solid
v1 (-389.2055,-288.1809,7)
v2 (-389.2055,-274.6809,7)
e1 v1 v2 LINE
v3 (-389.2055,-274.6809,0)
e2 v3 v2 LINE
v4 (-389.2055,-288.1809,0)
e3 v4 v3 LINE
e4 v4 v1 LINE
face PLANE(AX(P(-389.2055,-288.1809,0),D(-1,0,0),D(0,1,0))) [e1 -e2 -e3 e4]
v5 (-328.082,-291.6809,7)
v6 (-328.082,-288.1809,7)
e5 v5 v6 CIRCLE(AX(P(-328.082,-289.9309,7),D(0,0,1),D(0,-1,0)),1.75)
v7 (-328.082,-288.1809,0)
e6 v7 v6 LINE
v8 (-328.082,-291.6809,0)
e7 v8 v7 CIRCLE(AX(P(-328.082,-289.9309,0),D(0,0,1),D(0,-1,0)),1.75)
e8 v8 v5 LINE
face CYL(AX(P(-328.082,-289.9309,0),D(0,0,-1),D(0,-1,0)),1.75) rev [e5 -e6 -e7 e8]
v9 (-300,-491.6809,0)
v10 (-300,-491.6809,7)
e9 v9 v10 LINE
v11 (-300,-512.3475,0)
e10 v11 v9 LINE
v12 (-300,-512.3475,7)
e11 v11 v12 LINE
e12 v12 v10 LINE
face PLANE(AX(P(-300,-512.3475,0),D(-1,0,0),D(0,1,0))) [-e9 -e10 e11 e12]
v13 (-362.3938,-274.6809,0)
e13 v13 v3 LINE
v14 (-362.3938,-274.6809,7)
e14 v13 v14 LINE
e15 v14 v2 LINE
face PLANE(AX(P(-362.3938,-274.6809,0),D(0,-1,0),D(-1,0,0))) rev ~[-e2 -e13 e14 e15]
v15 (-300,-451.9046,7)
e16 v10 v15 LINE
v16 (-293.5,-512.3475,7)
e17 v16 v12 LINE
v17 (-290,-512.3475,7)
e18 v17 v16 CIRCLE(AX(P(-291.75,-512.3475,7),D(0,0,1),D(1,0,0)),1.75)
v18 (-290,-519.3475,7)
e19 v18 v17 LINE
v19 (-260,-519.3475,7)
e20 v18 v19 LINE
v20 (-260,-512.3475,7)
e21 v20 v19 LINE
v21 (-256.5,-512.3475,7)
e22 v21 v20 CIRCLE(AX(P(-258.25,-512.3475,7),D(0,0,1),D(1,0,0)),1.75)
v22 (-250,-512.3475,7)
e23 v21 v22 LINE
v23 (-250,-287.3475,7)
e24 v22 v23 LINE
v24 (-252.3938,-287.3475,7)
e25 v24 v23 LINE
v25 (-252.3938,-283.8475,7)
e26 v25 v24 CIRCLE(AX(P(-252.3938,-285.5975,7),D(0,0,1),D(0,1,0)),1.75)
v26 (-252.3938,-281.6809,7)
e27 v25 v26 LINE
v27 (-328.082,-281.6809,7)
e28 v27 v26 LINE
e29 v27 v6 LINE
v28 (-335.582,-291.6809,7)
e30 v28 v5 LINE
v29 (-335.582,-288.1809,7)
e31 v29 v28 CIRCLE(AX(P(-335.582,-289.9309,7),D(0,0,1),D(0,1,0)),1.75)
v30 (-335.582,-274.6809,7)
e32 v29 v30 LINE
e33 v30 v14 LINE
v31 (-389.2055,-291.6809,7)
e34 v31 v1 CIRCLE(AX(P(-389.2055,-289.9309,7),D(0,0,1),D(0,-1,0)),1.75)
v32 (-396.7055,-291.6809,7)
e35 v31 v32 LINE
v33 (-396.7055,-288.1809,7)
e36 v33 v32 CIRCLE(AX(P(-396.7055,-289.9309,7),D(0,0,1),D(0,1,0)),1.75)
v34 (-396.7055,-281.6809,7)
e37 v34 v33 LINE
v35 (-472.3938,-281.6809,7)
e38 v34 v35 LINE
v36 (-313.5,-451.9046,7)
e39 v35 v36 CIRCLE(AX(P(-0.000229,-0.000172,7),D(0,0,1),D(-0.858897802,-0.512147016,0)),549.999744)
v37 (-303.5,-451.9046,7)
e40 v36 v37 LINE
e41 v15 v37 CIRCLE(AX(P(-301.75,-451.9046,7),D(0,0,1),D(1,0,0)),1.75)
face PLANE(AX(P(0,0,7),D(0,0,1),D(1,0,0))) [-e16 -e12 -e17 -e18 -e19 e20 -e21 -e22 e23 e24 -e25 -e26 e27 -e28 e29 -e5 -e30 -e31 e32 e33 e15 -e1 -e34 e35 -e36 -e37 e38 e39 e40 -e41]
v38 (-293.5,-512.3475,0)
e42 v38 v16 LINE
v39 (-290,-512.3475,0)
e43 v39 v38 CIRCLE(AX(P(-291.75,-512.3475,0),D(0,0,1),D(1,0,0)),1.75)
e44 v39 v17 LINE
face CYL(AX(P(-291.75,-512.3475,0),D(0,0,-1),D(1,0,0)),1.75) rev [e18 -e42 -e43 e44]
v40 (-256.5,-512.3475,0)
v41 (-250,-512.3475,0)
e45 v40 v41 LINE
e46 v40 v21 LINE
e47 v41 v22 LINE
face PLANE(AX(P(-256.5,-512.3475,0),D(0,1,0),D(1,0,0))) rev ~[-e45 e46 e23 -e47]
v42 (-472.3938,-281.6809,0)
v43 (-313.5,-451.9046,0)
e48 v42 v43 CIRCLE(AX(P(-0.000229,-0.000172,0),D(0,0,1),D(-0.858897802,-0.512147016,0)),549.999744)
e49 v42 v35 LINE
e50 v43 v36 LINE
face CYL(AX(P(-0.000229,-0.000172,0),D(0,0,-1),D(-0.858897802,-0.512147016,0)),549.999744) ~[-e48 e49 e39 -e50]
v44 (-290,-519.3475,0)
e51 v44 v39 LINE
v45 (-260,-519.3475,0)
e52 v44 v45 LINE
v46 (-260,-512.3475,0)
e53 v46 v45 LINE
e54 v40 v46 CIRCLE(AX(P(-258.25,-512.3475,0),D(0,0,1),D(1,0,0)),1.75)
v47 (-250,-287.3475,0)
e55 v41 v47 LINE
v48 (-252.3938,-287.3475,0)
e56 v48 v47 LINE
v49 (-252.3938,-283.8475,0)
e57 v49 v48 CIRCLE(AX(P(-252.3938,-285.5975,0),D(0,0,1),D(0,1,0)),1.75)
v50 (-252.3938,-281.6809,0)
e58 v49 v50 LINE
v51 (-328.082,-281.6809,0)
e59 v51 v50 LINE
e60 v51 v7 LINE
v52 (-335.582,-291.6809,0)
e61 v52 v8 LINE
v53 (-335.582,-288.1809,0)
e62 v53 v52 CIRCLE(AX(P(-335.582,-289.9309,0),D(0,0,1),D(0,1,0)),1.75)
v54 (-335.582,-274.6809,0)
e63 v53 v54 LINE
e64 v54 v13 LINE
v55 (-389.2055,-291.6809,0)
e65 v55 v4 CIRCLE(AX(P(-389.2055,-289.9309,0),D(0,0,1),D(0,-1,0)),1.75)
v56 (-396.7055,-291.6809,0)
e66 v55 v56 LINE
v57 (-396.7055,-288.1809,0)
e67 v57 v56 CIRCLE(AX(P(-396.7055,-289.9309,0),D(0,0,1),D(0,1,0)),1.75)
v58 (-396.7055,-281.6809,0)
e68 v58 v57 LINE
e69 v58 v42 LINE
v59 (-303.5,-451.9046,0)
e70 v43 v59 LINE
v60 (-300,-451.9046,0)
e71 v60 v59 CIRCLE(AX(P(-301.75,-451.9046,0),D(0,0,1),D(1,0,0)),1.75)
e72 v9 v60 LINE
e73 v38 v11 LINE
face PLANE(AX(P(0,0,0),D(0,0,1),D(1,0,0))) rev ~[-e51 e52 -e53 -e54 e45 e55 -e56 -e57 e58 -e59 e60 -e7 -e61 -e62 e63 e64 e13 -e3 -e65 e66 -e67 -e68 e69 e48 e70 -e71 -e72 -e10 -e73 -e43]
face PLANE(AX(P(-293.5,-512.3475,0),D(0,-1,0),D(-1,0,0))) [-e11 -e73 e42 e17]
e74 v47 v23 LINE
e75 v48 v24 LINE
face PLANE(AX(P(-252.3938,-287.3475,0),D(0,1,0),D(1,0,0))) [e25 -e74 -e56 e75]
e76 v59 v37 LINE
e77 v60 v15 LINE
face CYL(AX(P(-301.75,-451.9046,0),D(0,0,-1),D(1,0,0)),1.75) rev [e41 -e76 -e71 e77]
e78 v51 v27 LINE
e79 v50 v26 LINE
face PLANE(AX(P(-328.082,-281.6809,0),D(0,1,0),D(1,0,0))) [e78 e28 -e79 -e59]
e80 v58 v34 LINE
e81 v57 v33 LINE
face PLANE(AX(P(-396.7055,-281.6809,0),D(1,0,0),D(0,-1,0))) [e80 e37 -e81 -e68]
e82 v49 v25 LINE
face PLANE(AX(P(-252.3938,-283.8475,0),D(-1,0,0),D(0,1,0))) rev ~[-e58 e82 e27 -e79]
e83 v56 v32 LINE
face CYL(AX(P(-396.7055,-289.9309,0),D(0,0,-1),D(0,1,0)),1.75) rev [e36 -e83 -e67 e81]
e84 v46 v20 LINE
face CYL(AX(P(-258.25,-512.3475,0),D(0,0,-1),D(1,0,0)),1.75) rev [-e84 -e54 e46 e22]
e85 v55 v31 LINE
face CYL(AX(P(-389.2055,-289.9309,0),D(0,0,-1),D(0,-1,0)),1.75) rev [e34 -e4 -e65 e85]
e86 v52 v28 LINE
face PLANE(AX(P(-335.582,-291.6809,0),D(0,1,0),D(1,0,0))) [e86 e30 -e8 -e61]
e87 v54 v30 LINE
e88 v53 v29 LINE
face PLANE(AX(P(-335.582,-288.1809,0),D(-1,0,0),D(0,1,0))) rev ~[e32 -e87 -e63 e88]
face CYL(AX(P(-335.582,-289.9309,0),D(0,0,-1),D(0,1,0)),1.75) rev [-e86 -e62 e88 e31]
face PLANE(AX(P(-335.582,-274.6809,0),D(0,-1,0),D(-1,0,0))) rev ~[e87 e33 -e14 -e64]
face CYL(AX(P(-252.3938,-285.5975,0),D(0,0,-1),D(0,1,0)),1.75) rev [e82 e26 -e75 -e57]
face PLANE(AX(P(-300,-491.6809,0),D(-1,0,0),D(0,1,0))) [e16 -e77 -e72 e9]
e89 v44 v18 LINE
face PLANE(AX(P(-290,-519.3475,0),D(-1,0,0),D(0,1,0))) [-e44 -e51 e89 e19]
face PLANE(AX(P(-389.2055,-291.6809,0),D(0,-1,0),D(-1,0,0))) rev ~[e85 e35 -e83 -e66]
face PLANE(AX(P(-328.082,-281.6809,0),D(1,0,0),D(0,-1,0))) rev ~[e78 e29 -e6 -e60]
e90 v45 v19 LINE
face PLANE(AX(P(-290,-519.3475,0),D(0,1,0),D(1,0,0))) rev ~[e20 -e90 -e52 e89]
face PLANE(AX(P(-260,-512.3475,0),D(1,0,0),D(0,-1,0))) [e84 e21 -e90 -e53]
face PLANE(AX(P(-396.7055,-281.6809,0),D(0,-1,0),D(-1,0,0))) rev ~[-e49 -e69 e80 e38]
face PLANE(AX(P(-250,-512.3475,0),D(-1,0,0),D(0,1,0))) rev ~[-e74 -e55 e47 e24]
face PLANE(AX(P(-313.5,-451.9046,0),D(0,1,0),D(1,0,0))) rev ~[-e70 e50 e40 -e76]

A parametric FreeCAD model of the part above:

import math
import FreeCAD as App
import Part
import Sketcher
Q = App.Units.Quantity

doc = App.newDocument("Part")
body = doc.addObject("PartDesign::Body", "Body")

# Sketch on XY plane
sketch1 = doc.addObject("Sketcher::SketchObject", "Sketch")
body.addObject(sketch1)
sketch1.AttachmentSupport = (doc.XY_Plane, [""])
sketch1.MapMode = "FlatFace"
sketch1.addGeometry(Part.ArcOfCircle(Part.Circle(App.Vector(-258.25, -512.3475, 0), App.Vector(0, 0, 1), 1.75), math.radians(0), math.radians(180)), False)
sketch1.addGeometry(Part.LineSegment(App.Vector(-256.5, -512.3475, 0), App.Vector(-250, -512.3475, 0)), False)
sketch1.addGeometry(Part.LineSegment(App.Vector(-250, -512.3475, 0), App.Vector(-250, -287.3475, 0)), False)
sketch1.addGeometry(Part.LineSegment(App.Vector(-250, -287.3475, 0), App.Vector(-252.3938, -287.3475, 0)), False)
sketch1.addGeometry(Part.ArcOfCircle(Part.Circle(App.Vector(-252.3938, -285.5975, 0), App.Vector(0, 0, 1), 1.75), math.radians(90), math.radians(270)), False)
sketch1.addGeometry(Part.LineSegment(App.Vector(-252.3938, -283.8475, 0), App.Vector(-252.3938, -281.6809, 0)), False)
sketch1.addGeometry(Part.LineSegment(App.Vector(-252.3938, -281.6809, 0), App.Vector(-328.082, -281.6809, 0)), False)
sketch1.addGeometry(Part.LineSegment(App.Vector(-328.082, -281.6809, 0), App.Vector(-328.082, -288.1809, 0)), False)
sketch1.addGeometry(Part.ArcOfCircle(Part.Circle(App.Vector(-328.082, -289.9309, 0), App.Vector(0, 0, 1), 1.75), math.radians(-90), math.radians(90)), False)
sketch1.addGeometry(Part.LineSegment(App.Vector(-328.082, -291.6809, 0), App.Vector(-335.582, -291.6809, 0)), False)
sketch1.addGeometry(Part.ArcOfCircle(Part.Circle(App.Vector(-335.582, -289.9309, 0), App.Vector(0, 0, 1), 1.75), math.radians(90), math.radians(270)), False)
sketch1.addGeometry(Part.LineSegment(App.Vector(-335.582, -288.1809, 0), App.Vector(-335.582, -274.6809, 0)), False)
sketch1.addGeometry(Part.LineSegment(App.Vector(-335.582, -274.6809, 0), App.Vector(-389.2055, -274.6809, 0)), False)
sketch1.addGeometry(Part.LineSegment(App.Vector(-389.2055, -274.6809, 0), App.Vector(-389.2055, -288.1809, 0)), False)
sketch1.addGeometry(Part.ArcOfCircle(Part.Circle(App.Vector(-389.2055, -289.9309, 0), App.Vector(0, 0, 1), 1.75), math.radians(-90), math.radians(90)), False)
sketch1.addGeometry(Part.LineSegment(App.Vector(-389.2055, -291.6809, 0), App.Vector(-396.7055, -291.6809, 0)), False)
sketch1.addGeometry(Part.ArcOfCircle(Part.Circle(App.Vector(-396.7055, -289.9309, 0), App.Vector(0, 0, 1), 1.75), math.radians(90), math.radians(270)), False)
sketch1.addGeometry(Part.LineSegment(App.Vector(-396.7055, -288.1809, 0), App.Vector(-396.7055, -281.6809, 0)), False)
sketch1.addGeometry(Part.LineSegment(App.Vector(-396.7055, -281.6809, 0), App.Vector(-472.3938, -281.6809, 0)), False)
sketch1.addGeometry(Part.ArcOfCircle(Part.Circle(App.Vector(0, 0, 0), App.Vector(0, 0, 1), 549.999964), math.radians(-149.193049), math.radians(-124.750225)), False)
sketch1.addGeometry(Part.LineSegment(App.Vector(-313.5, -451.9046, 0), App.Vector(-303.5, -451.9046, 0)), False)
sketch1.addGeometry(Part.ArcOfCircle(Part.Circle(App.Vector(-301.75, -451.9046, 0), App.Vector(0, 0, 1), 1.75), math.radians(0), math.radians(180)), False)
sketch1.addGeometry(Part.LineSegment(App.Vector(-300, -451.9046, 0), App.Vector(-300, -512.3475, 0)), False)
sketch1.addGeometry(Part.LineSegment(App.Vector(-300, -512.3475, 0), App.Vector(-293.5, -512.3475, 0)), False)
sketch1.addGeometry(Part.ArcOfCircle(Part.Circle(App.Vector(-291.75, -512.3475, 0), App.Vector(0, 0, 1), 1.75), math.radians(0), math.radians(180)), False)
sketch1.addGeometry(Part.LineSegment(App.Vector(-290, -512.3475, 0), App.Vector(-290, -519.3475, 0)), False)
sketch1.addGeometry(Part.LineSegment(App.Vector(-290, -519.3475, 0), App.Vector(-260, -519.3475, 0)), False)
sketch1.addGeometry(Part.LineSegment(App.Vector(-260, -519.3475, 0), App.Vector(-260, -512.3475, 0)), False)
sketch1.addConstraint(Sketcher.Constraint("Coincident", 0, 1, 1, 1))
sketch1.addConstraint(Sketcher.Constraint("Coincident", 1, 2, 2, 1))
sketch1.addConstraint(Sketcher.Constraint("Coincident", 2, 2, 3, 1))
sketch1.addConstraint(Sketcher.Constraint("Tangent", 3, 2, 4, 2))
sketch1.addConstraint(Sketcher.Constraint("Coincident", 4, 1, 5, 1))
sketch1.addConstraint(Sketcher.Constraint("Coincident", 5, 2, 6, 1))
sketch1.addConstraint(Sketcher.Constraint("Coincident", 6, 2, 7, 1))
sketch1.addConstraint(Sketcher.Constraint("Coincident", 7, 2, 8, 2))
sketch1.addConstraint(Sketcher.Constraint("Tangent", 8, 1, 9, 1))
sketch1.addConstraint(Sketcher.Constraint("Tangent", 9, 2, 10, 2))
sketch1.addConstraint(Sketcher.Constraint("Coincident", 10, 1, 11, 1))
sketch1.addConstraint(Sketcher.Constraint("Coincident", 11, 2, 12, 1))
sketch1.addConstraint(Sketcher.Constraint("Coincident", 12, 2, 13, 1))
sketch1.addConstraint(Sketcher.Constraint("Coincident", 13, 2, 14, 2))
sketch1.addConstraint(Sketcher.Constraint("Tangent", 14, 1, 15, 1))
sketch1.addConstraint(Sketcher.Constraint("Tangent", 15, 2, 16, 2))
sketch1.addConstraint(Sketcher.Constraint("Coincident", 16, 1, 17, 1))
sketch1.addConstraint(Sketcher.Constraint("Coincident", 17, 2, 18, 1))
sketch1.addConstraint(Sketcher.Constraint("Coincident", 18, 2, 19, 1))
sketch1.addConstraint(Sketcher.Constraint("Coincident", 19, 2, 20, 1))
sketch1.addConstraint(Sketcher.Constraint("Coincident", 20, 2, 21, 2))
sketch1.addConstraint(Sketcher.Constraint("Tangent", 21, 1, 22, 1))
sketch1.addConstraint(Sketcher.Constraint("Coincident", 22, 2, 23, 1))
sketch1.addConstraint(Sketcher.Constraint("Coincident", 23, 2, 24, 2))
sketch1.addConstraint(Sketcher.Constraint("Tangent", 24, 1, 25, 1))
sketch1.addConstraint(Sketcher.Constraint("Coincident", 25, 2, 26, 1))
sketch1.addConstraint(Sketcher.Constraint("Coincident", 26, 2, 27, 1))
sketch1.addConstraint(Sketcher.Constraint("Tangent", 27, 2, 0, 2))
sketch1.addConstraint(Sketcher.Constraint("Horizontal", 1))
sketch1.addConstraint(Sketcher.Constraint("Vertical", 2))
sketch1.addConstraint(Sketcher.Constraint("Horizontal", 3))
sketch1.addConstraint(Sketcher.Constraint("Vertical", 5))
sketch1.addConstraint(Sketcher.Constraint("Horizontal", 6))
sketch1.addConstraint(Sketcher.Constraint("Vertical", 7))
sketch1.addConstraint(Sketcher.Constraint("Horizontal", 9))
sketch1.addConstraint(Sketcher.Constraint("Vertical", 11))
sketch1.addConstraint(Sketcher.Constraint("Horizontal", 12))
sketch1.addConstraint(Sketcher.Constraint("Vertical", 13))
sketch1.addConstraint(Sketcher.Constraint("Horizontal", 15))
sketch1.addConstraint(Sketcher.Constraint("Vertical", 17))
sketch1.addConstraint(Sketcher.Constraint("Horizontal", 18))
sketch1.addConstraint(Sketcher.Constraint("Horizontal", 20))
sketch1.addConstraint(Sketcher.Constraint("Vertical", 22))
sketch1.addConstraint(Sketcher.Constraint("Horizontal", 23))
sketch1.addConstraint(Sketcher.Constraint("Vertical", 25))
sketch1.addConstraint(Sketcher.Constraint("Horizontal", 26))
sketch1.addConstraint(Sketcher.Constraint("Vertical", 27))
sketch1.addConstraint(Sketcher.Constraint("Coincident", 19, 3, -1, 1))
sketch1.addConstraint(Sketcher.Constraint("Equal", 0, 4))
sketch1.addConstraint(Sketcher.Constraint("Equal", 4, 8))
sketch1.addConstraint(Sketcher.Constraint("Equal", 8, 10))
sketch1.addConstraint(Sketcher.Constraint("Equal", 10, 14))
sketch1.addConstraint(Sketcher.Constraint("Equal", 14, 16))
sketch1.addConstraint(Sketcher.Constraint("Equal", 16, 21))
sketch1.addConstraint(Sketcher.Constraint("Equal", 21, 24))
sketch1.addConstraint(Sketcher.Constraint("Horizontal", 10, 3, 14, 3))
sketch1.addConstraint(Sketcher.Constraint("Horizontal", 0, 3, 24, 3))
sketch1.addConstraint(Sketcher.Constraint("Horizontal", 24, 3, 0, 1))
sketch1.addConstraint(Sketcher.Constraint("Horizontal", 6, 2, 17, 2))
sketch1.addConstraint(Sketcher.Constraint("Horizontal", 21, 3, 19, 2))
sketch1.addConstraint(Sketcher.Constraint("Horizontal", 1, 2, 22, 2))
sketch1.addConstraint(Sketcher.Constraint("Vertical", 3, 2, 4, 1))
sketch1.addConstraint(Sketcher.Constraint("Vertical", 8, 3, 6, 2))
sketch1.addConstraint(Sketcher.Constraint("Vertical", 9, 2, 10, 1))
sketch1.addConstraint(Sketcher.Constraint("Vertical", 14, 3, 12, 2))
sketch1.addConstraint(Sketcher.Constraint("Vertical", 15, 2, 16, 1))
sketch1.addConstraint(Sketcher.Constraint("Equal", 9, 15))
sketch1.addConstraint(Sketcher.Constraint("Equal", 6, 18))
sketch1.addConstraint(Sketcher.Constraint("Equal", 1, 23))
sketch1.addConstraint(Sketcher.Constraint("Equal", 23, 7))
sketch1.addConstraint(Sketcher.Constraint("Radius", 19, Q("550 mm")))
sketch1.addConstraint(Sketcher.Constraint("DistanceX", 20, 1, 20, 2, Q("10 mm")))
sketch1.addConstraint(Sketcher.Constraint("DistanceX", 26, 1, 26, 2, Q("30 mm")))
sketch1.addConstraint(Sketcher.Constraint("DistanceY", 25, 2, 25, 1, Q("7 mm")))
sketch1.addConstraint(Sketcher.Constraint("Radius", 0, Q("1.75 mm")))
sketch1.addConstraint(Sketcher.Constraint("DistanceX", 9, 2, 9, 1, Q("7.5 mm")))
sketch1.addConstraint(Sketcher.Constraint("DistanceX", 21, 3, 24, 3, Q("10 mm")))
sketch1.addConstraint(Sketcher.Constraint("DistanceY", 6, 2, 11, 2, Q("7 mm")))
sketch1.addConstraint(Sketcher.Constraint("DistanceY", 2, 1, 2, 2, Q("225 mm")))
sketch1.addConstraint(Sketcher.Constraint("DistanceX", 1, 2, -1, 1, Q("250 mm")))
sketch1.addConstraint(Sketcher.Constraint("DistanceX", 4, 3, -1, 1, Q("252.3938 mm")))
sketch1.addConstraint(Sketcher.Constraint("DistanceX", 18, 2, -1, 1, Q("472.3938 mm")))
sketch1.addConstraint(Sketcher.Constraint("DistanceY", 22, 2, 22, 1, Q("60.443 mm")))
sketch1.addConstraint(Sketcher.Constraint("DistanceX", 6, 2, 6, 1, Q("75.6882 mm")))
pad1 = doc.addObject("PartDesign::Pad", "Pad")
body.addObject(pad1)
pad1.Profile = sketch1
pad1.Length = 7

doc.recompute()
